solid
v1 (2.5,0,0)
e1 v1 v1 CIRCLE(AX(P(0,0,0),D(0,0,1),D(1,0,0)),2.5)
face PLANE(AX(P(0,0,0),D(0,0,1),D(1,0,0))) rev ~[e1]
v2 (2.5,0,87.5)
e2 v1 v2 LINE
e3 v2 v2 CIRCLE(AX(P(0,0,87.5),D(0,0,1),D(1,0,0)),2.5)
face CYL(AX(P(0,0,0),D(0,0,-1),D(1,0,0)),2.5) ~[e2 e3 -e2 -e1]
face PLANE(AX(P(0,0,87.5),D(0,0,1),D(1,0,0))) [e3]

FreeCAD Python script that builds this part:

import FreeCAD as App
import Part
import Sketcher
Q = App.Units.Quantity

doc = App.newDocument("Part")
params = doc.addObject("Spreadsheet::Sheet", "Params")
for row, (alias, value) in enumerate([
    ("sketch1_diameter", "5 mm"),
    ("pad1_length", "87.5 mm"),
], start=1):
    params.set(f"A{row}", alias)
    params.set(f"B{row}", "=" + value)
    params.setAlias(f"B{row}", alias)

body = doc.addObject("PartDesign::Body", "Body")

# Sketch on XY plane
sketch1 = body.newObject("Sketcher::SketchObject", "Sketch")
sketch1.AttachmentSupport = (doc.getObject("XY_Plane"), [""])
sketch1.MapMode = "FlatFace"
sketch1.addGeometry(Part.Circle(App.Vector(0, 0, 0), App.Vector(0, 0, 1), 2.5), False)
sketch1.addConstraint([
    Sketcher.Constraint("Coincident", 0, 3, -1, 1),
    Sketcher.Constraint("Diameter", 0, Q("5 mm")),
])
sketch1.setExpression("Constraints[1]", "Params.sketch1_diameter")
pad1 = body.newObject("PartDesign::Pad", "Pad")
pad1.Profile = sketch1
pad1.setExpression("Length", "Params.pad1_length")

doc.recompute()
